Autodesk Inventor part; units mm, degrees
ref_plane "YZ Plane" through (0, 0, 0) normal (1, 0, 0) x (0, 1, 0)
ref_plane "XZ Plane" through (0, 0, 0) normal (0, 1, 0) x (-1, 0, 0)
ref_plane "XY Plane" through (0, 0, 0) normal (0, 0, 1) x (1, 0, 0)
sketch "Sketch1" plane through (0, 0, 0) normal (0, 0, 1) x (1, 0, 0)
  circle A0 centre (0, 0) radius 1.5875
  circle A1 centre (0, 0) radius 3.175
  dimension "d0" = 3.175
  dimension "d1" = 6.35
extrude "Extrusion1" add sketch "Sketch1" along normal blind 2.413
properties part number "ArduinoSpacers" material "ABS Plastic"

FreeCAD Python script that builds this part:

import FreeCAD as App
import Part
import Sketcher

V = App.Vector
Q = App.Units.Quantity

doc = App.newDocument("Part")
body = doc.addObject("PartDesign::Body", "Body")

# Sketch on XY plane
sketch1 = body.newObject("Sketcher::SketchObject", "Sketch")
sketch1.AttachmentSupport = (doc.getObject("XY_Plane"), [""])
sketch1.MapMode = "FlatFace"
sketch1.addGeometry([
    Part.Circle(V(0, 0, 0), V(0, 0, 1), 3.2),
    Part.Circle(V(0, 0, 0), V(0, 0, 1), 1.6),
], False)
sketch1.addConstraint([
    Sketcher.Constraint("Coincident", 0, 3, -1, 1),
    Sketcher.Constraint("Coincident", 1, 3, -1, 1),
    Sketcher.Constraint("Diameter", 0, Q("0.25 in")),
    Sketcher.Constraint("Diameter", 1, Q("0.125 in")),
])
pad1 = body.newObject("PartDesign::Pad", "Pad")
pad1.Profile = sketch1
pad1.Length = Q("0.095 in")

doc.recompute()
